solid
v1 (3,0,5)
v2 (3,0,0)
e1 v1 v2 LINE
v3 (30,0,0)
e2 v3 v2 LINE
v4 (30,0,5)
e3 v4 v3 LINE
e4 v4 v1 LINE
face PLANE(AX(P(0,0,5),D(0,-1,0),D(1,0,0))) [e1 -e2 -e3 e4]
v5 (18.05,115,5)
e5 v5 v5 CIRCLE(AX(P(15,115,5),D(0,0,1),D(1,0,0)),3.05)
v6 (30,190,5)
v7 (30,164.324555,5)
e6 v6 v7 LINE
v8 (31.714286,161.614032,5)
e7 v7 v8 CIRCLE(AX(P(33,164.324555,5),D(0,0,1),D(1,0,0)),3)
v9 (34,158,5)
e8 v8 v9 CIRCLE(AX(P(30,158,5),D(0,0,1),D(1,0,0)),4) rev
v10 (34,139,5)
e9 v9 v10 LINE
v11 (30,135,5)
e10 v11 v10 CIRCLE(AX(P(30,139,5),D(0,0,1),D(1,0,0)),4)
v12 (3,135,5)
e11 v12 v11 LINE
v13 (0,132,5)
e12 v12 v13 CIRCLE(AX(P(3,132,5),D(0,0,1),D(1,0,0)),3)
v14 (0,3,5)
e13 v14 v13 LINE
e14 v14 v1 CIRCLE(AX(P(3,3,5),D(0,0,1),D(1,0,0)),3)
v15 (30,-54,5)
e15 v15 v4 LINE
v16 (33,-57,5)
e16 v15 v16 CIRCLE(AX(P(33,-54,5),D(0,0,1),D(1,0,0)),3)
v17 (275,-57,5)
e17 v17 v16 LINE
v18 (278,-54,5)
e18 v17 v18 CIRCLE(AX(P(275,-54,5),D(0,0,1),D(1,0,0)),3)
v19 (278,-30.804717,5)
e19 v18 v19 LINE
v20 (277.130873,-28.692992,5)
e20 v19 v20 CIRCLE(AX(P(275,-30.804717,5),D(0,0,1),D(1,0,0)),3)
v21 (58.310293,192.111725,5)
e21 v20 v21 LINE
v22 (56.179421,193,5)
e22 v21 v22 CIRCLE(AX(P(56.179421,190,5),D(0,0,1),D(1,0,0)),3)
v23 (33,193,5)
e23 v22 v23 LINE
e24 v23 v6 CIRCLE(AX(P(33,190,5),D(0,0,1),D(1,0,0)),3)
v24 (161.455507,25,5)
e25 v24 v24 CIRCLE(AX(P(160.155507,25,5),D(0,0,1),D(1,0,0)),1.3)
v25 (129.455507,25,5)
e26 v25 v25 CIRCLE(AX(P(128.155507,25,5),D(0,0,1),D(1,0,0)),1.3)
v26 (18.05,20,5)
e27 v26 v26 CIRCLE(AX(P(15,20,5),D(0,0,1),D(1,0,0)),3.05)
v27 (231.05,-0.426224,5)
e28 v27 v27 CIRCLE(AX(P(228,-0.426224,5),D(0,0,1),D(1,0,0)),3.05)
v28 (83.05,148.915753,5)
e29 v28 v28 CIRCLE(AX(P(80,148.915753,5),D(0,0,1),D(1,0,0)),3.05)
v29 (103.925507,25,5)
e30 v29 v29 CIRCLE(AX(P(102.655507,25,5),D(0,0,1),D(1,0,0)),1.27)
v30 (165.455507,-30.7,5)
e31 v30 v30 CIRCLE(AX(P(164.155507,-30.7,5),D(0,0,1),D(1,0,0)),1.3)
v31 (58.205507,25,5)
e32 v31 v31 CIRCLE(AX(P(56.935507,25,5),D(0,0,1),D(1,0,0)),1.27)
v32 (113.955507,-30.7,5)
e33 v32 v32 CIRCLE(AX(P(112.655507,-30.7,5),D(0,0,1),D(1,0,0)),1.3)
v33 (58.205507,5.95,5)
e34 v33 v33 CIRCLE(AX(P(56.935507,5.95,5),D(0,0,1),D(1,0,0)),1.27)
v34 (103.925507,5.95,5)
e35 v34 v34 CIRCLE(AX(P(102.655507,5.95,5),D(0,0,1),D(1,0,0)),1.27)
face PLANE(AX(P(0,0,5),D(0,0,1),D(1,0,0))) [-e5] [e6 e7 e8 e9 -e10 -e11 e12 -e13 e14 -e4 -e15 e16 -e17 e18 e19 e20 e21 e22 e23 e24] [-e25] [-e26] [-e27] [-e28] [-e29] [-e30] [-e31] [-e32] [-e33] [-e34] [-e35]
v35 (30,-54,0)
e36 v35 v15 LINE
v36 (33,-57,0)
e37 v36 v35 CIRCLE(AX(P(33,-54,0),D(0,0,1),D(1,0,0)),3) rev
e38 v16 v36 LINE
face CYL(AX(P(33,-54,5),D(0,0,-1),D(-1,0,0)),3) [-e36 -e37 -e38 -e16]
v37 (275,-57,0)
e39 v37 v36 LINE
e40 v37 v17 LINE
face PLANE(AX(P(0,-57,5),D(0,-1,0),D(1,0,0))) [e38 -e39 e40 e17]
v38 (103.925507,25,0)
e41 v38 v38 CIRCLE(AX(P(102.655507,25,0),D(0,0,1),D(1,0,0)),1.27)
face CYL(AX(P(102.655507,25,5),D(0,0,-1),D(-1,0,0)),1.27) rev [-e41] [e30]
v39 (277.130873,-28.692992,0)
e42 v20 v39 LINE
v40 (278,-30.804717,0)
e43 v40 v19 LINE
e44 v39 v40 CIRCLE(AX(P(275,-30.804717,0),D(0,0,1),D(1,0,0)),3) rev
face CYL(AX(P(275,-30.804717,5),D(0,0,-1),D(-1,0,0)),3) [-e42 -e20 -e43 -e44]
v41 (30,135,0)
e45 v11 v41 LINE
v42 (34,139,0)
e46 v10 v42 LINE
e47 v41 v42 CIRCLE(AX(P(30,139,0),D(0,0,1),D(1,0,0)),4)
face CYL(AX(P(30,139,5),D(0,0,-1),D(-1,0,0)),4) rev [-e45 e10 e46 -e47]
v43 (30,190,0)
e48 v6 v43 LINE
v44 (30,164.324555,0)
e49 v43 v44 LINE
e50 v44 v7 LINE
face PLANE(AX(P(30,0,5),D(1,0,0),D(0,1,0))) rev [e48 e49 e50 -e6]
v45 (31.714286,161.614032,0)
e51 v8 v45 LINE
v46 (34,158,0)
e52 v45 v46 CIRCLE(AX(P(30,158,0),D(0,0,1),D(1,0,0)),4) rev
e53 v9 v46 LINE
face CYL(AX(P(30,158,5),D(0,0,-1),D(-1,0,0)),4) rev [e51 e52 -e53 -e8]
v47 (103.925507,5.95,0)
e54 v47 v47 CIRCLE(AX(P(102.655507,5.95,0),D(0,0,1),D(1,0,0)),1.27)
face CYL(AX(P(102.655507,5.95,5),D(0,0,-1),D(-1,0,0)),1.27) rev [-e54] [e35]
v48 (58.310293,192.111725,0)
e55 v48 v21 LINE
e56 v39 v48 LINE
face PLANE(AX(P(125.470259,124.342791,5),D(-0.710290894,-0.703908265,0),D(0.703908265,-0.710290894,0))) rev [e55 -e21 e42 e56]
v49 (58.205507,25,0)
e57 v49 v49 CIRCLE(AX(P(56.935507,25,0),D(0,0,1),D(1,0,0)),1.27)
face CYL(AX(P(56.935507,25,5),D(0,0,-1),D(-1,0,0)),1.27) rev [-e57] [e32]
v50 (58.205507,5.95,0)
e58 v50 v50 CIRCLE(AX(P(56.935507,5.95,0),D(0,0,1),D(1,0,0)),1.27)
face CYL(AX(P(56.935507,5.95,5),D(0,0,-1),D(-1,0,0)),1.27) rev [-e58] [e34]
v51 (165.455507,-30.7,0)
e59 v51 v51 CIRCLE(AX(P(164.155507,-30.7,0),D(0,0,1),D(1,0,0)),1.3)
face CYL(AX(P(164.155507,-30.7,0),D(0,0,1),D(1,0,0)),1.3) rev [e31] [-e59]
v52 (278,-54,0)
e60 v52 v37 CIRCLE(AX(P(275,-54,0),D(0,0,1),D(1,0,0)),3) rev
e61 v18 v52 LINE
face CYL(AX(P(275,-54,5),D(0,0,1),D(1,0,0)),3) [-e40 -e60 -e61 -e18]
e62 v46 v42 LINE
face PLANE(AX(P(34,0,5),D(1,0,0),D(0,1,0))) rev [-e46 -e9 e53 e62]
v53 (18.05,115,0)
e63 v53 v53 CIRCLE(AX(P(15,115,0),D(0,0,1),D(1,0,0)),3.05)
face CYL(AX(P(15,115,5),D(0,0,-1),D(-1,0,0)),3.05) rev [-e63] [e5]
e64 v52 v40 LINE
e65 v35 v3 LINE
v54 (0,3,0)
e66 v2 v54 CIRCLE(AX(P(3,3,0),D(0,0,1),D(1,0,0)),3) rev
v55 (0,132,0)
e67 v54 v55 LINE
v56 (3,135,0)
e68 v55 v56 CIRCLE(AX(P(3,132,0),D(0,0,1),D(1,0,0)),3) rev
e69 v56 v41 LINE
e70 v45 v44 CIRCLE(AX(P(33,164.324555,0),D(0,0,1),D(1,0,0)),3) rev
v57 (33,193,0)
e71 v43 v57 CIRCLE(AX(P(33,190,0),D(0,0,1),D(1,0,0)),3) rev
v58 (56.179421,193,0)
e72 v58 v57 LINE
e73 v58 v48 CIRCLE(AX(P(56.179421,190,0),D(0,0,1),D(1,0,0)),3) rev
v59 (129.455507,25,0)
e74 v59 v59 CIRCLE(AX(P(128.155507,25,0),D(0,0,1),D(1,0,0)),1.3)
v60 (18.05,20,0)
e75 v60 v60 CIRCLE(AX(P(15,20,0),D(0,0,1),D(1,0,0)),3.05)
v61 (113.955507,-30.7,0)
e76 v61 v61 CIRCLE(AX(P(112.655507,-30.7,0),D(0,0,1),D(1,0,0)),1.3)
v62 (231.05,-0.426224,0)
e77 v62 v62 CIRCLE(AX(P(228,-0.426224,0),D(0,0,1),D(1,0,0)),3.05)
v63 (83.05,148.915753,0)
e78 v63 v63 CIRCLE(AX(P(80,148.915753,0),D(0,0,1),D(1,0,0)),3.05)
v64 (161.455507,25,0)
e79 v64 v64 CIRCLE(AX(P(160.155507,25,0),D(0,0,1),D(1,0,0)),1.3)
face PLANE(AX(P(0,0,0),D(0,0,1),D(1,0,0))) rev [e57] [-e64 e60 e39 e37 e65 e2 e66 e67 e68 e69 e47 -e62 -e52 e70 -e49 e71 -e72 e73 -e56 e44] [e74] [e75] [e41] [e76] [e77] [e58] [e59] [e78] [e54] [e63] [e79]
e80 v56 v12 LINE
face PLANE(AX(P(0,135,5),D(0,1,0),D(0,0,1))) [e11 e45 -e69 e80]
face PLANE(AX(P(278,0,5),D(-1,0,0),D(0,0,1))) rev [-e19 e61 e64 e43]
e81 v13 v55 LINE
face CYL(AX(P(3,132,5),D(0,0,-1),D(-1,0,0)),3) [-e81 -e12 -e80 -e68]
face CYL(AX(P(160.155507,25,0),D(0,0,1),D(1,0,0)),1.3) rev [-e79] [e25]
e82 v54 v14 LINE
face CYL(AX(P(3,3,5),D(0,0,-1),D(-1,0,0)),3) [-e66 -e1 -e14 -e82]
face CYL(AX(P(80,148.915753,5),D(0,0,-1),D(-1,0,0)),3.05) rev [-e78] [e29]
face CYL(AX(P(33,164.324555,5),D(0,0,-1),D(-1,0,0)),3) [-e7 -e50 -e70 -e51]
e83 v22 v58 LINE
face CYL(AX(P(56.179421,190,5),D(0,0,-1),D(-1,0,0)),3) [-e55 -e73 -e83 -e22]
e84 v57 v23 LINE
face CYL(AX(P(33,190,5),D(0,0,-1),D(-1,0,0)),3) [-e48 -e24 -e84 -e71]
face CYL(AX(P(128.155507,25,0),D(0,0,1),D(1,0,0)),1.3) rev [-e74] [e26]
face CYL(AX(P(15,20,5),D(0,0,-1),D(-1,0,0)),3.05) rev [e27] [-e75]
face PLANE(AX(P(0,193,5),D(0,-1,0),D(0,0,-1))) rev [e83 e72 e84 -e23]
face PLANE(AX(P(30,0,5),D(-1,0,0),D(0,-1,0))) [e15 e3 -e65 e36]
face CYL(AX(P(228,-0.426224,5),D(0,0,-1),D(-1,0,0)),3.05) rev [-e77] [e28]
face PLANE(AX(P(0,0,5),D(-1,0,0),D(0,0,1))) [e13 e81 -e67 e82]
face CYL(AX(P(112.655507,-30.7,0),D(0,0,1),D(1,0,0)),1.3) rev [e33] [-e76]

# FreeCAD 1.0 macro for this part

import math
import FreeCAD as App
import Part
import Sketcher

V = App.Vector
Q = App.Units.Quantity


def edges_at(feature, points):
    """Names of the edges that pass closest to the given points."""
    edges = feature.Shape.Edges
    near = lambda p: min(range(len(edges)), key=lambda i: edges[i].distToShape(Part.Vertex(*p))[0])
    return sorted({f"Edge{near(p) + 1}" for p in points})

doc = App.newDocument("Part")
body = doc.addObject("PartDesign::Body", "Body")

# Sketch on XY plane
sketch1 = doc.addObject("Sketcher::SketchObject", "Sketch")
body.addObject(sketch1)
sketch1.AttachmentSupport = (doc.XY_Plane, [""])
sketch1.MapMode = "FlatFace"
sketch1.addGeometry(Part.LineSegment(V(0, 135, 0), V(0, 0, 0)), False)
sketch1.addGeometry(Part.LineSegment(V(0, 0, 0), V(30, 0, 0)), False)
sketch1.addGeometry(Part.LineSegment(V(30, 0, 0), V(30, -57, 0)), False)
sketch1.addGeometry(Part.LineSegment(V(30, -57, 0), V(278, -57, 0)), False)
sketch1.addGeometry(Part.LineSegment(V(278, -57, 0), V(278, -29.57, 0)), False)
sketch1.addGeometry(Part.LineSegment(V(278, -29.57, 0), V(57.43, 193, 0)), False)
sketch1.addGeometry(Part.LineSegment(V(57.43, 193, 0), V(30, 193, 0)), False)
sketch1.addGeometry(Part.LineSegment(V(30, 193, 0), V(30, 162, 0)), False)
sketch1.addGeometry(Part.ArcOfCircle(Part.Circle(V(30, 158, 0), V(0, 0, 1), 4), math.radians(0), math.radians(90)), False)
sketch1.addGeometry(Part.LineSegment(V(34, 158, 0), V(34, 139, 0)), False)
sketch1.addGeometry(Part.ArcOfCircle(Part.Circle(V(30, 139, 0), V(0, 0, 1), 4), math.radians(-90), math.radians(0)), False)
sketch1.addGeometry(Part.LineSegment(V(30, 135, 0), V(0, 135, 0)), False)
sketch1.addGeometry(Part.Circle(V(228, -0.426224, 0), V(0, 0, 1), 3.05), False)
sketch1.addGeometry(Part.Circle(V(102.655507, 5.95, 0), V(0, 0, 1), 1.27), False)
sketch1.addGeometry(Part.Circle(V(102.655507, 25, 0), V(0, 0, 1), 1.27), False)
sketch1.addGeometry(Part.Circle(V(56.935507, 5.95, 0), V(0, 0, 1), 1.27), False)
sketch1.addGeometry(Part.Circle(V(56.935507, 25, 0), V(0, 0, 1), 1.27), False)
sketch1.addGeometry(Part.Circle(V(15, 20, 0), V(0, 0, 1), 3.05), False)
sketch1.addGeometry(Part.Circle(V(80, 148.915753, 0), V(0, 0, 1), 3.05), False)
sketch1.addGeometry(Part.Circle(V(15, 115, 0), V(0, 0, 1), 3.05), False)
sketch1.addConstraint(Sketcher.Constraint("Coincident", 0, 2, 1, 1))
sketch1.addConstraint(Sketcher.Constraint("Coincident", 1, 2, 2, 1))
sketch1.addConstraint(Sketcher.Constraint("Coincident", 2, 2, 3, 1))
sketch1.addConstraint(Sketcher.Constraint("Coincident", 3, 2, 4, 1))
sketch1.addConstraint(Sketcher.Constraint("Coincident", 4, 2, 5, 1))
sketch1.addConstraint(Sketcher.Constraint("Coincident", 5, 2, 6, 1))
sketch1.addConstraint(Sketcher.Constraint("Coincident", 6, 2, 7, 1))
sketch1.addConstraint(Sketcher.Constraint("Coincident", 7, 2, 8, 2))
sketch1.addConstraint(Sketcher.Constraint("Tangent", 8, 1, 9, 1))
sketch1.addConstraint(Sketcher.Constraint("Tangent", 9, 2, 10, 2))
sketch1.addConstraint(Sketcher.Constraint("Tangent", 10, 1, 11, 1))
sketch1.addConstraint(Sketcher.Constraint("Coincident", 11, 2, 0, 1))
sketch1.addConstraint(Sketcher.Constraint("Vertical", 0))
sketch1.addConstraint(Sketcher.Constraint("Horizontal", 1))
sketch1.addConstraint(Sketcher.Constraint("Vertical", 2))
sketch1.addConstraint(Sketcher.Constraint("Horizontal", 3))
sketch1.addConstraint(Sketcher.Constraint("Vertical", 4))
sketch1.addConstraint(Sketcher.Constraint("Horizontal", 6))
sketch1.addConstraint(Sketcher.Constraint("Vertical", 7))
sketch1.addConstraint(Sketcher.Constraint("Vertical", 9))
sketch1.addConstraint(Sketcher.Constraint("Horizontal", 11))
sketch1.addConstraint(Sketcher.Constraint("Coincident", 0, 2, -1, 1))
sketch1.addConstraint(Sketcher.Constraint("Equal", 8, 10))
sketch1.addConstraint(Sketcher.Constraint("Equal", 13, 14))
sketch1.addConstraint(Sketcher.Constraint("Equal", 14, 15))
sketch1.addConstraint(Sketcher.Constraint("Equal", 15, 16))
sketch1.addConstraint(Sketcher.Constraint("Equal", 12, 17))
sketch1.addConstraint(Sketcher.Constraint("Equal", 17, 18))
sketch1.addConstraint(Sketcher.Constraint("Equal", 18, 19))
sketch1.addConstraint(Sketcher.Constraint("Horizontal", 13, 3, 15, 3))
sketch1.addConstraint(Sketcher.Constraint("Horizontal", 14, 3, 16, 3))
sketch1.addConstraint(Sketcher.Constraint("Vertical", 13, 3, 14, 3))
sketch1.addConstraint(Sketcher.Constraint("Vertical", 15, 3, 16, 3))
sketch1.addConstraint(Sketcher.Constraint("Vertical", 17, 3, 19, 3))
sketch1.addConstraint(Sketcher.Constraint("Vertical", 10, 3, 1, 2))
sketch1.addConstraint(Sketcher.Constraint("Vertical", 2, 2, 6, 2))
sketch1.addConstraint(Sketcher.Constraint("Equal", 6, 4))
sketch1.addConstraint(Sketcher.Constraint("Radius", 8, Q("4 mm")))
sketch1.addConstraint(Sketcher.Constraint("Diameter", 12, Q("6.1 mm")))
sketch1.addConstraint(Sketcher.Constraint("Diameter", 13, Q("2.54 mm")))
sketch1.addConstraint(Sketcher.Constraint("DistanceX", 1, 1, 1, 2, Q("30 mm")))
sketch1.addConstraint(Sketcher.Constraint("DistanceX", 3, 1, 3, 2, Q("248 mm")))
sketch1.addConstraint(Sketcher.Constraint("DistanceY", 0, 2, 0, 1, Q("135 mm")))
sketch1.addConstraint(Sketcher.Constraint("DistanceY", 2, 2, 2, 1, Q("57 mm")))
sketch1.addConstraint(Sketcher.Constraint("DistanceY", 7, 2, 7, 1, Q("31 mm")))
sketch1.addConstraint(Sketcher.Constraint("DistanceY", 9, 2, 9, 1, Q("19 mm")))
sketch1.addConstraint(Sketcher.Constraint("DistanceX", -1, 1, 12, 3, Q("228 mm")))
sketch1.addConstraint(Sketcher.Constraint("DistanceY", -1, 1, 14, 3, Q("25 mm")))
sketch1.addConstraint(Sketcher.Constraint("DistanceX", -1, 1, 17, 3, Q("15 mm")))
sketch1.addConstraint(Sketcher.Constraint("DistanceY", -1, 1, 17, 3, Q("20 mm")))
sketch1.addConstraint(Sketcher.Constraint("DistanceX", -1, 1, 18, 3, Q("80 mm")))
sketch1.addConstraint(Sketcher.Constraint("DistanceY", -1, 1, 19, 3, Q("115 mm")))
sketch1.addConstraint(Sketcher.Constraint("DistanceX", 6, 2, 6, 1, Q("27.43 mm")))
sketch1.addConstraint(Sketcher.Constraint("DistanceY", -1, 1, 13, 3, Q("5.95 mm")))
sketch1.addConstraint(Sketcher.Constraint("DistanceX", 15, 3, 13, 3, Q("45.72 mm")))
sketch1.addConstraint(Sketcher.Constraint("DistanceY", 12, 3, -1, 1, Q("0.426224 mm")))
sketch1.addConstraint(Sketcher.Constraint("DistanceX", -1, 1, 13, 3, Q("102.655507 mm")))
sketch1.addConstraint(Sketcher.Constraint("DistanceY", -1, 1, 18, 3, Q("148.915753 mm")))
pad1 = doc.addObject("PartDesign::Pad", "Pad")
body.addObject(pad1)
pad1.Profile = sketch1
pad1.Length = 5
doc.recompute()

fillet = doc.addObject("PartDesign::Fillet", "Fillet")
body.addObject(fillet)
fillet.Base = (pad1, edges_at(pad1, [
    (30, 162, 2.5),
    (30, 193, 2.5),
    (57.43, 193, 2.5),
    (278, -29.57, 2.5),
    (278, -57, 2.5),
    (30, -57, 2.5),
    (0, 0, 2.5),
    (0, 135, 2.5),
]))
fillet.Radius = 3

# Sketch on XY plane
sketch2 = doc.addObject("Sketcher::SketchObject", "Sketch001")
body.addObject(sketch2)
sketch2.AttachmentSupport = (doc.XY_Plane, [""])
sketch2.MapMode = "FlatFace"
sketch2.AttachmentOffset = App.Placement(V(0, 0, 5), App.Rotation())
sketch2.addGeometry(Part.Circle(V(112.655507, -30.7, 0), V(0, 0, 1), 1.3), False)
sketch2.addGeometry(Part.Circle(V(164.155507, -30.7, 0), V(0, 0, 1), 1.3), False)
sketch2.addGeometry(Part.Circle(V(128.155507, 25, 0), V(0, 0, 1), 1.3), False)
sketch2.addGeometry(Part.Circle(V(160.155507, 25, 0), V(0, 0, 1), 1.3), False)
sketch2.addConstraint(Sketcher.Constraint("Equal", 0, 1))
sketch2.addConstraint(Sketcher.Constraint("Equal", 1, 2))
sketch2.addConstraint(Sketcher.Constraint("Equal", 2, 3))
sketch2.addConstraint(Sketcher.Constraint("Horizontal", 0, 3, 1, 3))
sketch2.addConstraint(Sketcher.Constraint("Horizontal", 2, 3, 3, 3))
sketch2.addConstraint(Sketcher.Constraint("Diameter", 0, Q("2.6 mm")))
sketch2.addConstraint(Sketcher.Constraint("DistanceY", -1, 1, 2, 3, Q("25 mm")))
sketch2.addConstraint(Sketcher.Constraint("DistanceX", 2, 3, 1, 3, Q("36 mm")))
sketch2.addConstraint(Sketcher.Constraint("DistanceX", 2, 3, 3, 3, Q("32 mm")))
sketch2.addConstraint(Sketcher.Constraint("DistanceY", 0, 3, -1, 1, Q("30.7 mm")))
sketch2.addConstraint(Sketcher.Constraint("DistanceX", 0, 3, 1, 3, Q("51.5 mm")))
sketch2.addConstraint(Sketcher.Constraint("DistanceX", -1, 1, 0, 3, Q("112.655507 mm")))
pocket1 = doc.addObject("PartDesign::Pocket", "Pocket")
body.addObject(pocket1)
pocket1.Profile = sketch2
pocket1.Type = "ThroughAll"

doc.recompute()
